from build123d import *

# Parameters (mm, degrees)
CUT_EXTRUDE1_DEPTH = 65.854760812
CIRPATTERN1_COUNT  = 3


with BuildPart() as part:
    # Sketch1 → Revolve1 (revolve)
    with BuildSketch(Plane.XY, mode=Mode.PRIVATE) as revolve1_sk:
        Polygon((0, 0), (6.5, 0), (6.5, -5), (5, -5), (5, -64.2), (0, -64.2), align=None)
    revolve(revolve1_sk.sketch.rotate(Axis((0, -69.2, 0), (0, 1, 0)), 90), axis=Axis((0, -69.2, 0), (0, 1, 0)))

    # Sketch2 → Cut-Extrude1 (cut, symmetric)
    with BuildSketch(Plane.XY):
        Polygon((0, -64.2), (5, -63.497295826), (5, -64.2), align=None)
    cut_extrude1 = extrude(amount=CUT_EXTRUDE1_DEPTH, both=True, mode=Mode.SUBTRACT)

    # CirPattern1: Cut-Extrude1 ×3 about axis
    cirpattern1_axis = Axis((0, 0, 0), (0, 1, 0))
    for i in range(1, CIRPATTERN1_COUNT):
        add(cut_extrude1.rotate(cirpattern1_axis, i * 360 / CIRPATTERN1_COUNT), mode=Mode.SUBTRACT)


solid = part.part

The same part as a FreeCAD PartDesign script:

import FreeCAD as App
import Part
import Sketcher
Q = App.Units.Quantity

doc = App.newDocument("Part")
params = doc.addObject("Spreadsheet::Sheet", "Params")
for row, (alias, value) in enumerate([
    ("sketch1_width", "5 mm"),
    ("sketch1_width2", "6.5 mm"),
    ("sketch1_height", "64.2 mm"),
    ("revolution_angle", "360 deg"),
    ("sketch2_width", "5 mm"),
    ("pocket1_length", "131.709522 mm"),
], start=1):
    params.set(f"A{row}", alias)
    params.set(f"B{row}", "=" + value)
    params.setAlias(f"B{row}", alias)

body = doc.addObject("PartDesign::Body", "Body")

# Sketch on XY plane
sketch1 = doc.addObject("Sketcher::SketchObject", "Sketch")
body.addObject(sketch1)
sketch1.AttachmentSupport = (doc.XY_Plane, [""])
sketch1.MapMode = "FlatFace"
sketch1.addGeometry(Part.LineSegment(App.Vector(6.5, 0, 0), App.Vector(0, 0, 0)), False)
sketch1.addGeometry(Part.LineSegment(App.Vector(0, 0, 0), App.Vector(0, -64.2, 0)), False)
sketch1.addGeometry(Part.LineSegment(App.Vector(0, -64.2, 0), App.Vector(5, -64.2, 0)), False)
sketch1.addGeometry(Part.LineSegment(App.Vector(5, -64.2, 0), App.Vector(5, -5, 0)), False)
sketch1.addGeometry(Part.LineSegment(App.Vector(5, -5, 0), App.Vector(6.5, -5, 0)), False)
sketch1.addGeometry(Part.LineSegment(App.Vector(6.5, -5, 0), App.Vector(6.5, 0, 0)), False)
sketch1.addConstraint(Sketcher.Constraint("Coincident", 0, 2, 1, 1))
sketch1.addConstraint(Sketcher.Constraint("Coincident", 1, 2, 2, 1))
sketch1.addConstraint(Sketcher.Constraint("Coincident", 2, 2, 3, 1))
sketch1.addConstraint(Sketcher.Constraint("Coincident", 3, 2, 4, 1))
sketch1.addConstraint(Sketcher.Constraint("Coincident", 4, 2, 5, 1))
sketch1.addConstraint(Sketcher.Constraint("Coincident", 5, 2, 0, 1))
sketch1.addConstraint(Sketcher.Constraint("Horizontal", 0))
sketch1.addConstraint(Sketcher.Constraint("Vertical", 1))
sketch1.addConstraint(Sketcher.Constraint("Horizontal", 2))
sketch1.addConstraint(Sketcher.Constraint("Vertical", 3))
sketch1.addConstraint(Sketcher.Constraint("Horizontal", 4))
sketch1.addConstraint(Sketcher.Constraint("Vertical", 5))
sketch1.addConstraint(Sketcher.Constraint("Coincident", 0, 2, -1, 1))
sketch1.addConstraint(Sketcher.Constraint("Equal", 2, 5))
sketch1.addConstraint(Sketcher.Constraint("DistanceX", 2, 1, 2, 2, Q("5 mm")))
sketch1.addConstraint(Sketcher.Constraint("DistanceX", 0, 2, 0, 1, Q("6.5 mm")))
sketch1.addConstraint(Sketcher.Constraint("DistanceY", 1, 2, 1, 1, Q("64.2 mm")))
sketch1.setExpression("Constraints[14]", "Params.sketch1_width")
sketch1.setExpression("Constraints[15]", "Params.sketch1_width2")
sketch1.setExpression("Constraints[16]", "Params.sketch1_height")
revolution = doc.addObject("PartDesign::Revolution", "Revolution")
body.addObject(revolution)
revolution.Profile = sketch1
revolution.ReferenceAxis = (sketch1, ["V_Axis"])
revolution.setExpression("Angle", "Params.revolution_angle")

# Sketch on XY plane
sketch2 = doc.addObject("Sketcher::SketchObject", "Sketch001")
body.addObject(sketch2)
sketch2.AttachmentSupport = (doc.XY_Plane, [""])
sketch2.MapMode = "FlatFace"
sketch2.addGeometry(Part.LineSegment(App.Vector(5, -63.5, 0), App.Vector(0, -64.2, 0)), False)
sketch2.addGeometry(Part.LineSegment(App.Vector(0, -64.2, 0), App.Vector(5, -64.2, 0)), False)
sketch2.addGeometry(Part.LineSegment(App.Vector(5, -64.2, 0), App.Vector(5, -63.5, 0)), False)
sketch2.addConstraint(Sketcher.Constraint("Coincident", 0, 2, 1, 1))
sketch2.addConstraint(Sketcher.Constraint("Coincident", 1, 2, 2, 1))
sketch2.addConstraint(Sketcher.Constraint("Coincident", 2, 2, 0, 1))
sketch2.addConstraint(Sketcher.Constraint("Horizontal", 1))
sketch2.addConstraint(Sketcher.Constraint("Vertical", 2))
sketch2.addConstraint(Sketcher.Constraint("PointOnObject", 0, 2, -2))
sketch2.addConstraint(Sketcher.Constraint("DistanceX", 1, 1, 1, 2, Q("5 mm")))
sketch2.addConstraint(Sketcher.Constraint("Angle", 0, Q("-172 deg")))
sketch2.addConstraint(Sketcher.Constraint("DistanceY", 0, 2, -1, 1, Q("64.2 mm")))
sketch2.setExpression("Constraints[6]", "Params.sketch2_width")
pocket1 = doc.addObject("PartDesign::Pocket", "Pocket")
body.addObject(pocket1)
pocket1.Profile = sketch2
pocket1.setExpression("Length", "Params.pocket1_length")
pocket1.Midplane = True
doc.recompute()

polarpattern = doc.addObject("PartDesign::PolarPattern", "PolarPattern")
body.addObject(polarpattern)
polarpattern.Originals = [pocket1]
polarpattern.Axis = (doc.Y_Axis, [""])
polarpattern.Angle = 360
polarpattern.Occurrences = 3
body.Tip = polarpattern

doc.recompute()
